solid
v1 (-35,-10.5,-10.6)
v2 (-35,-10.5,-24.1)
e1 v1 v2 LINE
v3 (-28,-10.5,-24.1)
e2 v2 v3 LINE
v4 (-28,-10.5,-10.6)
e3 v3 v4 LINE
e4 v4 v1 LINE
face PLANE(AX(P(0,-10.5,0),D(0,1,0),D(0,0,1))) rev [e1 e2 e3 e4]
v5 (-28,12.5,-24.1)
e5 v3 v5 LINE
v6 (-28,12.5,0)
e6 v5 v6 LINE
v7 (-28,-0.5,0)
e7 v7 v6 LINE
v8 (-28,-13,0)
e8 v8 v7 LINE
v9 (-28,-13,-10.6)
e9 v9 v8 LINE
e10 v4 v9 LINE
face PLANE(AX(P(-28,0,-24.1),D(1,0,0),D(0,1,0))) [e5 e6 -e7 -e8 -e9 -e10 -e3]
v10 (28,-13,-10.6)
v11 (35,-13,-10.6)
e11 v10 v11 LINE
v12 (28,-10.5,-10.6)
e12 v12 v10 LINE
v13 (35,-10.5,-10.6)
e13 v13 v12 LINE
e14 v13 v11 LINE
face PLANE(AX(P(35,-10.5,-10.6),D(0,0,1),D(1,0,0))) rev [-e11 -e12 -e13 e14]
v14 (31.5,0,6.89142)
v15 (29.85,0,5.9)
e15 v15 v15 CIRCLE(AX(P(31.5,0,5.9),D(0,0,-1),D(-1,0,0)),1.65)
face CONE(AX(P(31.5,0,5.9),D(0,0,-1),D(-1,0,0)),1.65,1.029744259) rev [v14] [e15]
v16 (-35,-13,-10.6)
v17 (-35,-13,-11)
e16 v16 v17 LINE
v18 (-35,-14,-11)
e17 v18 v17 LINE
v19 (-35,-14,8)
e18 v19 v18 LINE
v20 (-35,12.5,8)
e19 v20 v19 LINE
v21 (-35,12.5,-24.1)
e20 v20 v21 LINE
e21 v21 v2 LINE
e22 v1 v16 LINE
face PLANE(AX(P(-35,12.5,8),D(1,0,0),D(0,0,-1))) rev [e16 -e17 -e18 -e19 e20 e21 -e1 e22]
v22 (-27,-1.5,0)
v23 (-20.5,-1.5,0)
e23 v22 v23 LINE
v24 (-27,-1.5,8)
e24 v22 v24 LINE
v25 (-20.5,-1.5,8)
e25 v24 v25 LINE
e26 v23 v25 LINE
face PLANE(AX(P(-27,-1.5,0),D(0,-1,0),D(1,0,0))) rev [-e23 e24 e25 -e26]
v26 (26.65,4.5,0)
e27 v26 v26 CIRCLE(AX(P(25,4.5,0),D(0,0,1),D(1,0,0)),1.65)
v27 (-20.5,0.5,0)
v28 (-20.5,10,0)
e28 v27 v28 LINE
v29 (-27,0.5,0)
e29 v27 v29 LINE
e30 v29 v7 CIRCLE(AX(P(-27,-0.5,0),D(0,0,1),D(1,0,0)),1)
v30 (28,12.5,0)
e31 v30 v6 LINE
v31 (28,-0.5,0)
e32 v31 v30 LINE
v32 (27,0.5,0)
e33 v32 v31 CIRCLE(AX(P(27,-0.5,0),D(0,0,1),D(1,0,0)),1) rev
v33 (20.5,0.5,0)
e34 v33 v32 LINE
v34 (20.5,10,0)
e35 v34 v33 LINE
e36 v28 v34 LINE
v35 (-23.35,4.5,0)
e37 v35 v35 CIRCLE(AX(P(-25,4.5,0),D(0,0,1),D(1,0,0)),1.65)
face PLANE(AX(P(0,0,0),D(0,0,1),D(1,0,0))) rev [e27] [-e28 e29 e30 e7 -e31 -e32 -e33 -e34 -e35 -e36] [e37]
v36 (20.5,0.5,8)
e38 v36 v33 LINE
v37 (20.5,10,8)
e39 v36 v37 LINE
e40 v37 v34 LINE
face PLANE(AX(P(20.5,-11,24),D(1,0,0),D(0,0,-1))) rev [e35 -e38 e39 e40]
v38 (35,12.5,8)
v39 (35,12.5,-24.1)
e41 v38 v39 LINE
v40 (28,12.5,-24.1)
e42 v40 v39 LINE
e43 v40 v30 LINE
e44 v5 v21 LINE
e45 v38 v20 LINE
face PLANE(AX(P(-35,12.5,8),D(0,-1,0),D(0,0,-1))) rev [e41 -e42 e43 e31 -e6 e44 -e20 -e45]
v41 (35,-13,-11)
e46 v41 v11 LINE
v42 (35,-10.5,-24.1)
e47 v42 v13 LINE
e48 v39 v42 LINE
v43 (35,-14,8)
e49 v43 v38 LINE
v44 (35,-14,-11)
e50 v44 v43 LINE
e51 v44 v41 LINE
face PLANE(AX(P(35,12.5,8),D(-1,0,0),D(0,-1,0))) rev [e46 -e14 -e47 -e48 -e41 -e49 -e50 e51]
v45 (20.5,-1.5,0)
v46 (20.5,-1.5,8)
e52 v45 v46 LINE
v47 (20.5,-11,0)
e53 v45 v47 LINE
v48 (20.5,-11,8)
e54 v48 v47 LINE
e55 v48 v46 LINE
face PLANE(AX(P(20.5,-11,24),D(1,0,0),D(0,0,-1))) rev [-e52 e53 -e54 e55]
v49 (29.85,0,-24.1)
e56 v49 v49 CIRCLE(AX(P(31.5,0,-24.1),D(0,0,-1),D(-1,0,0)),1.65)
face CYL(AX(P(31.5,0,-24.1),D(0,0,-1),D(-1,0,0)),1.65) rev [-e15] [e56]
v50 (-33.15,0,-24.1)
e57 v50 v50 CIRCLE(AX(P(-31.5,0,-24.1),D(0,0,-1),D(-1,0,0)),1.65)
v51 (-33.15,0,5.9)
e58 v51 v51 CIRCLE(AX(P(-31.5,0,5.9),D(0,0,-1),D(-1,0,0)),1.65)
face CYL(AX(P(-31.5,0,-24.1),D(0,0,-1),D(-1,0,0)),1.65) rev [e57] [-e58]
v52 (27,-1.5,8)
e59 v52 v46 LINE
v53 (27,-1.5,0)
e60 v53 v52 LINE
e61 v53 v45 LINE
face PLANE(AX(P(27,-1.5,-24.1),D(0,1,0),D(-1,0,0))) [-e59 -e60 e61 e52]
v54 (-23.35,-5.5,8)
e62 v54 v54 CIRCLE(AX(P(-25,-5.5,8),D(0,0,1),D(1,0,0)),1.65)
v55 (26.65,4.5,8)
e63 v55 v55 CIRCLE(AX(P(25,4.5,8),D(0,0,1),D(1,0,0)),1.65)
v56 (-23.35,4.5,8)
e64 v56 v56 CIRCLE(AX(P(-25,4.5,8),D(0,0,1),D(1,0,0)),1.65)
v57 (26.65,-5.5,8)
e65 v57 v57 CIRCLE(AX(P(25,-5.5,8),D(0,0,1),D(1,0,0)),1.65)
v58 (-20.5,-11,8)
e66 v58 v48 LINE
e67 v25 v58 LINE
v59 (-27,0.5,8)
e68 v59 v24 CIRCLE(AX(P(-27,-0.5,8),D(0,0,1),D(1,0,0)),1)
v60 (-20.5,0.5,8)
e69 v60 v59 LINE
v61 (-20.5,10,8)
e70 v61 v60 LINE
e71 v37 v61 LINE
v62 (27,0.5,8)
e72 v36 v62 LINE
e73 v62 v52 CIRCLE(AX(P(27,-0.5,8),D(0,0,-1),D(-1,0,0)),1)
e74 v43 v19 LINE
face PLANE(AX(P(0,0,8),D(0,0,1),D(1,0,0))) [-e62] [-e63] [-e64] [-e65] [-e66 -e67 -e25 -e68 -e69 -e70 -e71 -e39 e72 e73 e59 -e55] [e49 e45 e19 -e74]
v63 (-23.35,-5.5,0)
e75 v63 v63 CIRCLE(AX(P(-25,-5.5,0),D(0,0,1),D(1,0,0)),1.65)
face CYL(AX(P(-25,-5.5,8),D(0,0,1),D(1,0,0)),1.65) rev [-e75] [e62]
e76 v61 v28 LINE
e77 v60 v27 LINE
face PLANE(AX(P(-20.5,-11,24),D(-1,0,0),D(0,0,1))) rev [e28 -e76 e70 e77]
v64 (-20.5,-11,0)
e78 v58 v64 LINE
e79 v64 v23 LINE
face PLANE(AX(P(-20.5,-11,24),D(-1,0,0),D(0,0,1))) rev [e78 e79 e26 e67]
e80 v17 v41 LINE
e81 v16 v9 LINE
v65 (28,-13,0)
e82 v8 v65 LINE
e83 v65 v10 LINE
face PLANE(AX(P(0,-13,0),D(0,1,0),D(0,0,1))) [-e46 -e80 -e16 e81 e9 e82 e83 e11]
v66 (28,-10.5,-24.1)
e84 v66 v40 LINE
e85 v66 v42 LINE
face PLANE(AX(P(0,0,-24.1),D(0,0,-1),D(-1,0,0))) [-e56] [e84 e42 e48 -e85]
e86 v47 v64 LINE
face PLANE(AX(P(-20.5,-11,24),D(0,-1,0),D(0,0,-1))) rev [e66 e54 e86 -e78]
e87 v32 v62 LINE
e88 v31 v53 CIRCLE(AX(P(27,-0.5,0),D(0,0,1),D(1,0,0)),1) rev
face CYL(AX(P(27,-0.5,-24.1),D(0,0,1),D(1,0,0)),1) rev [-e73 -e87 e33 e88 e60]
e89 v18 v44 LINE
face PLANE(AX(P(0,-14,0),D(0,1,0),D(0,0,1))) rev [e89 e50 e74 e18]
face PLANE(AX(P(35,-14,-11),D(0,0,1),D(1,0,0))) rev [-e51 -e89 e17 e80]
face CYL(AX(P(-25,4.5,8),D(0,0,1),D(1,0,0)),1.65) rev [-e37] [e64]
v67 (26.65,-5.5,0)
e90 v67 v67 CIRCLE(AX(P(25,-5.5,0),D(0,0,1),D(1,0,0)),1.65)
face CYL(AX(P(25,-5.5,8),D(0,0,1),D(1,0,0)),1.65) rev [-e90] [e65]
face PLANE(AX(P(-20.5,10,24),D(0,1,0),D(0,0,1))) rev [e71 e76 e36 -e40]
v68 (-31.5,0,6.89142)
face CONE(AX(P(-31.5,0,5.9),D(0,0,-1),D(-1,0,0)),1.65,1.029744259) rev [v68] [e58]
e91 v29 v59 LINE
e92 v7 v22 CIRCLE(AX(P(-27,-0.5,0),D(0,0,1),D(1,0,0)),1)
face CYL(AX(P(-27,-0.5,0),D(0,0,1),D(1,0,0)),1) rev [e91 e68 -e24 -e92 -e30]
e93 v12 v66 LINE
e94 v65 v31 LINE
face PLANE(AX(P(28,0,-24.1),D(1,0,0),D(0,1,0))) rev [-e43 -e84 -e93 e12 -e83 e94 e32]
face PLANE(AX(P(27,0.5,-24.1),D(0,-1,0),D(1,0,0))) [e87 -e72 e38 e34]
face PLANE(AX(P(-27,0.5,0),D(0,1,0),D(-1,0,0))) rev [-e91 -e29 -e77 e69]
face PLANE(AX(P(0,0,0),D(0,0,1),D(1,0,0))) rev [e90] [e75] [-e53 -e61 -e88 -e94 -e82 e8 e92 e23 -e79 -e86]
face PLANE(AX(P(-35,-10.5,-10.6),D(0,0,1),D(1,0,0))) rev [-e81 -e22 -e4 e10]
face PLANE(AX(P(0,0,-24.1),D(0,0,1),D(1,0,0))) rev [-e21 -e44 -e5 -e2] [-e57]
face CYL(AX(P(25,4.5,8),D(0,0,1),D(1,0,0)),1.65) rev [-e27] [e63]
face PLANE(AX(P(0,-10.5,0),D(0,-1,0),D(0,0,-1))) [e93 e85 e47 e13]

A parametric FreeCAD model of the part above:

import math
import FreeCAD as App
import Part
import Sketcher
from FreeCAD import Vector
Q = App.Units.Quantity

doc = App.newDocument("Part")
params = doc.addObject("Spreadsheet::Sheet", "Params")
for row, (alias, value) in enumerate([
    ("sketch1_width", "70 mm"),
    ("sketch1_height", "25 mm"),
    ("pad1_length", "8 mm"),
    ("sketch2_width", "41 mm"),
    ("sketch2_height", "21 mm"),
    ("pocket1_length", "24 mm"),
    ("sketch3_radius", "1 mm"),
    ("sketch3_width", "13 mm"),
    ("sketch4_width", "7 mm"),
    ("sketch4_height", "25 mm"),
    ("pad2_length", "24.1 mm"),
    ("sketch5_height", "30 mm"),
    ("sketch5_width", "1.65 mm"),
    ("groove_angle", "360 deg"),
    ("sketch6_width", "7 mm"),
    ("sketch6_height", "13.5 mm"),
    ("pocket3_length", "2 mm"),
    ("sketch7_width", "70 mm"),
    ("sketch7_width2", "7 mm"),
    ("sketch7_height", "18.6 mm"),
    ("sketch7_height2", "10.6 mm"),
    ("pad3_length", "0.5 mm"),
    ("sketch8_width", "70 mm"),
    ("sketch8_height", "19 mm"),
    ("pad4_length", "1 mm"),
    ("sketch9_diameter", "3.3 mm"),
    ("hole_diameter", "3.3 mm"),
], start=1):
    params.set(f"A{row}", alias)
    params.set(f"B{row}", "=" + value)
    params.setAlias(f"B{row}", alias)

body = doc.addObject("PartDesign::Body", "Body")

# Sketch on XY plane
sketch1 = doc.addObject("Sketcher::SketchObject", "Sketch")
body.addObject(sketch1)
sketch1.AttachmentSupport = (doc.XY_Plane, [""])
sketch1.MapMode = "FlatFace"
sketch1.addGeometry([
    Part.LineSegment(Vector(-35, 12, 0), Vector(-35, -12, 0)),
    Part.LineSegment(Vector(-35, -12, 0), Vector(35, -12, 0)),
    Part.LineSegment(Vector(35, -12, 0), Vector(35, 12, 0)),
    Part.LineSegment(Vector(35, 12, 0), Vector(-35, 12, 0)),
], False)
sketch1.addConstraint([
    Sketcher.Constraint("Coincident", 0, 2, 1, 1),
    Sketcher.Constraint("Coincident", 1, 2, 2, 1),
    Sketcher.Constraint("Coincident", 2, 2, 3, 1),
    Sketcher.Constraint("Coincident", 3, 2, 0, 1),
    Sketcher.Constraint("Vertical", 0),
    Sketcher.Constraint("Horizontal", 1),
    Sketcher.Constraint("Vertical", 2),
    Sketcher.Constraint("Horizontal", 3),
    Sketcher.Constraint("Symmetric", 0, 2, 2, 2, -1, 1),
    Sketcher.Constraint("DistanceX", 1, 1, 1, 2, Q("70 mm")),
    Sketcher.Constraint("DistanceY", 0, 2, 0, 1, Q("25 mm")),
])
sketch1.setExpression("Constraints[9]", "Params.sketch1_width")
sketch1.setExpression("Constraints[10]", "Params.sketch1_height")
pad1 = doc.addObject("PartDesign::Pad", "Pad")
body.addObject(pad1)
pad1.Profile = sketch1
pad1.setExpression("Length", "Params.pad1_length")

# Sketch on XY plane
sketch2 = doc.addObject("Sketcher::SketchObject", "Sketch001")
body.addObject(sketch2)
sketch2.AttachmentSupport = (doc.XY_Plane, [""])
sketch2.MapMode = "FlatFace"
sketch2.addGeometry([
    Part.LineSegment(Vector(20, 10, 0), Vector(20, -11, 0)),
    Part.LineSegment(Vector(20, -11, 0), Vector(-20, -11, 0)),
    Part.LineSegment(Vector(-20, -11, 0), Vector(-20, 10, 0)),
    Part.LineSegment(Vector(-20, 10, 0), Vector(20, 10, 0)),
], False)
sketch2.addConstraint([
    Sketcher.Constraint("Coincident", 0, 2, 1, 1),
    Sketcher.Constraint("Coincident", 1, 2, 2, 1),
    Sketcher.Constraint("Coincident", 2, 2, 3, 1),
    Sketcher.Constraint("Coincident", 3, 2, 0, 1),
    Sketcher.Constraint("Vertical", 0),
    Sketcher.Constraint("Horizontal", 1),
    Sketcher.Constraint("Vertical", 2),
    Sketcher.Constraint("Horizontal", 3),
    Sketcher.Constraint("DistanceX", 1, 2, 1, 1, Q("41 mm")),
    Sketcher.Constraint("DistanceY", 0, 2, 0, 1, Q("21 mm")),
    Sketcher.Constraint("DistanceY", 0, 2, -1, 1, Q("11 mm")),
    Sketcher.Constraint("DistanceX", -1, 1, 0, 2, Q("20.5 mm")),
])
sketch2.setExpression("Constraints[8]", "Params.sketch2_width")
sketch2.setExpression("Constraints[9]", "Params.sketch2_height")
pocket1 = doc.addObject("PartDesign::Pocket", "Pocket")
body.addObject(pocket1)
pocket1.Profile = sketch2
pocket1.setExpression("Length", "Params.pocket1_length")
pocket1.Reversed = True

# Sketch on XY plane
sketch3 = doc.addObject("Sketcher::SketchObject", "Sketch002")
body.addObject(sketch3)
sketch3.AttachmentSupport = (doc.XY_Plane, [""])
sketch3.MapMode = "FlatFace"
sketch3.AttachmentOffset = App.Placement(Vector(0, 0, 8), App.Rotation())
sketch3.addGeometry([
    Part.LineSegment(Vector(-14, 0.5, 0), Vector(-27, 0.5, 0)),
    Part.ArcOfCircle(Part.Circle(Vector(-27, -0.5, 0), Vector(0, 0, 1), 1), math.radians(90), math.radians(270)),
    Part.LineSegment(Vector(-27, -1.5, 0), Vector(-14, -1.5, 0)),
    Part.ArcOfCircle(Part.Circle(Vector(-14, -0.5, 0), Vector(0, 0, 1), 1), math.radians(-90), math.radians(90)),
], False)
sketch3.addConstraint([
    Sketcher.Constraint("Tangent", 0, 2, 1, 1),
    Sketcher.Constraint("Tangent", 1, 2, 2, 1),
    Sketcher.Constraint("Tangent", 2, 2, 3, 1),
    Sketcher.Constraint("Tangent", 3, 2, 0, 1),
    Sketcher.Constraint("Horizontal", 0),
    Sketcher.Constraint("Horizontal", 2),
    Sketcher.Constraint("Radius", 1, Q("1 mm")),
    Sketcher.Constraint("DistanceX", 0, 2, 0, 1, Q("13 mm")),
    Sketcher.Constraint("DistanceX", 1, 3, -1, 1, Q("27 mm")),
    Sketcher.Constraint("DistanceY", 1, 3, -1, 1, Q("0.5 mm")),
])
sketch3.setExpression("Constraints[6]", "Params.sketch3_radius")
sketch3.setExpression("Constraints[7]", "Params.sketch3_width")
pocket2 = doc.addObject("PartDesign::Pocket", "Pocket001")
body.addObject(pocket2)
pocket2.Profile = sketch3
pocket2.Type = "ThroughAll"

# Sketch on XY plane
sketch4 = doc.addObject("Sketcher::SketchObject", "Sketch003")
body.addObject(sketch4)
sketch4.AttachmentSupport = (doc.XY_Plane, [""])
sketch4.MapMode = "FlatFace"
sketch4.addGeometry([
    Part.LineSegment(Vector(-35, 12, 0), Vector(-35, -12, 0)),
    Part.LineSegment(Vector(-35, -12, 0), Vector(-28, -12, 0)),
    Part.LineSegment(Vector(-28, -12, 0), Vector(-28, 12, 0)),
    Part.LineSegment(Vector(-28, 12, 0), Vector(-35, 12, 0)),
], False)
sketch4.addConstraint([
    Sketcher.Constraint("Coincident", 0, 2, 1, 1),
    Sketcher.Constraint("Coincident", 1, 2, 2, 1),
    Sketcher.Constraint("Coincident", 2, 2, 3, 1),
    Sketcher.Constraint("Coincident", 3, 2, 0, 1),
    Sketcher.Constraint("Vertical", 0),
    Sketcher.Constraint("Horizontal", 1),
    Sketcher.Constraint("Vertical", 2),
    Sketcher.Constraint("Horizontal", 3),
    Sketcher.Constraint("DistanceX", 1, 1, 1, 2, Q("7 mm")),
    Sketcher.Constraint("DistanceY", 0, 2, 0, 1, Q("25 mm")),
    Sketcher.Constraint("DistanceX", 0, 2, -1, 1, Q("35 mm")),
    Sketcher.Constraint("DistanceY", 0, 2, -1, 1, Q("12.5 mm")),
])
sketch4.setExpression("Constraints[8]", "Params.sketch4_width")
sketch4.setExpression("Constraints[9]", "Params.sketch4_height")
pad2 = doc.addObject("PartDesign::Pad", "Pad001")
body.addObject(pad2)
pad2.Profile = sketch4
pad2.setExpression("Length", "Params.pad2_length")
pad2.Reversed = True

# Sketch on YZ plane
sketch5 = doc.addObject("Sketcher::SketchObject", "Sketch004")
body.addObject(sketch5)
sketch5.AttachmentSupport = (doc.YZ_Plane, [""])
sketch5.MapMode = "FlatFace"
sketch5.AttachmentOffset = App.Placement(Vector(0, 0, -31.5), App.Rotation())
sketch5.addGeometry([
    Part.LineSegment(Vector(0, 6.9, 0), Vector(0, -24.1, 0)),
    Part.LineSegment(Vector(0, -24.1, 0), Vector(1.6, -24.1, 0)),
    Part.LineSegment(Vector(1.6, -24.1, 0), Vector(1.6, 5.9, 0)),
    Part.LineSegment(Vector(1.6, 5.9, 0), Vector(0, 6.9, 0)),
], False)
sketch5.addConstraint([
    Sketcher.Constraint("Coincident", 0, 2, 1, 1),
    Sketcher.Constraint("Coincident", 1, 2, 2, 1),
    Sketcher.Constraint("Coincident", 2, 2, 3, 1),
    Sketcher.Constraint("Coincident", 3, 2, 0, 1),
    Sketcher.Constraint("Vertical", 0),
    Sketcher.Constraint("Horizontal", 1),
    Sketcher.Constraint("Vertical", 2),
    Sketcher.Constraint("PointOnObject", 0, 2, -2),
    Sketcher.Constraint("DistanceY", 2, 1, 2, 2, Q("30 mm")),
    Sketcher.Constraint("Angle", 3, Q("149 deg")),
    Sketcher.Constraint("DistanceX", 1, 1, 1, 2, Q("1.65 mm")),
    Sketcher.Constraint("DistanceY", 0, 2, -1, 1, Q("24.1 mm")),
])
sketch5.setExpression("Constraints[8]", "Params.sketch5_height")
sketch5.setExpression("Constraints[10]", "Params.sketch5_width")
groove = doc.addObject("PartDesign::Groove", "Groove")
body.addObject(groove)
groove.Profile = sketch5
groove.ReferenceAxis = (sketch5, ["V_Axis"])
groove.setExpression("Angle", "Params.groove_angle")
doc.recompute()

mirrored = doc.addObject("PartDesign::Mirrored", "Mirrored")
body.addObject(mirrored)
mirrored.Originals = [pocket2, pad2, groove]
mirrored.MirrorPlane = (doc.YZ_Plane, [""])
body.Tip = mirrored

# Sketch on XZ plane
sketch6 = doc.addObject("Sketcher::SketchObject", "Sketch005")
body.addObject(sketch6)
sketch6.AttachmentSupport = (doc.XZ_Plane, [""])
sketch6.MapMode = "FlatFace"
sketch6.AttachmentOffset = App.Placement(Vector(0, 0, 12.5), App.Rotation())
sketch6.addGeometry([
    Part.LineSegment(Vector(28, -11, 0), Vector(28, -24, 0)),  # 0
    Part.LineSegment(Vector(28, -24, 0), Vector(35, -24, 0)),  # 1
    Part.LineSegment(Vector(35, -24, 0), Vector(35, -11, 0)),  # 2
    Part.LineSegment(Vector(35, -11, 0), Vector(28, -11, 0)),  # 3
    Part.LineSegment(Vector(-35, -11, 0), Vector(-35, -24, 0)),  # 4
    Part.LineSegment(Vector(-35, -24, 0), Vector(-28, -24, 0)),  # 5
    Part.LineSegment(Vector(-28, -24, 0), Vector(-28, -11, 0)),  # 6
    Part.LineSegment(Vector(-28, -11, 0), Vector(-35, -11, 0)),  # 7
], False)
sketch6.addConstraint([
    Sketcher.Constraint("Coincident", 0, 2, 1, 1),
    Sketcher.Constraint("Coincident", 1, 2, 2, 1),
    Sketcher.Constraint("Coincident", 2, 2, 3, 1),
    Sketcher.Constraint("Coincident", 3, 2, 0, 1),
    Sketcher.Constraint("Coincident", 4, 2, 5, 1),
    Sketcher.Constraint("Coincident", 5, 2, 6, 1),
    Sketcher.Constraint("Coincident", 6, 2, 7, 1),
    Sketcher.Constraint("Coincident", 7, 2, 4, 1),
    Sketcher.Constraint("Vertical", 0),
    Sketcher.Constraint("Horizontal", 1),
    Sketcher.Constraint("Vertical", 2),
    Sketcher.Constraint("Horizontal", 3),
    Sketcher.Constraint("Vertical", 4),
    Sketcher.Constraint("Horizontal", 5),
    Sketcher.Constraint("Vertical", 6),
    Sketcher.Constraint("Horizontal", 7),
    Sketcher.Constraint("Symmetric", 1, 2, 4, 2, -2),
    Sketcher.Constraint("Symmetric", 3, 2, 6, 2, -2),
    Sketcher.Constraint("DistanceX", 1, 1, 1, 2, Q("7 mm")),
    Sketcher.Constraint("DistanceY", 0, 2, 0, 1, Q("13.5 mm")),
    Sketcher.Constraint("DistanceX", -1, 1, 0, 2, Q("28 mm")),
    Sketcher.Constraint("DistanceY", 0, 2, -1, 1, Q("24.1 mm")),
])
sketch6.setExpression("Constraints[18]", "Params.sketch6_width")
sketch6.setExpression("Constraints[19]", "Params.sketch6_height")
pocket3 = doc.addObject("PartDesign::Pocket", "Pocket002")
body.addObject(pocket3)
pocket3.Profile = sketch6
pocket3.setExpression("Length", "Params.pocket3_length")

# Sketch on XZ plane
sketch7 = doc.addObject("Sketcher::SketchObject", "Sketch006")
body.addObject(sketch7)
sketch7.AttachmentSupport = (doc.XZ_Plane, [""])
sketch7.MapMode = "FlatFace"
sketch7.AttachmentOffset = App.Placement(Vector(0, 0, 12.5), App.Rotation())
sketch7.addGeometry([
    Part.LineSegment(Vector(35, 8, 0), Vector(-35, 8, 0)),  # 0
    Part.LineSegment(Vector(-35, 8, 0), Vector(-35, -11, 0)),  # 1
    Part.LineSegment(Vector(-35, -11, 0), Vector(-28, -11, 0)),  # 2
    Part.LineSegment(Vector(-28, -11, 0), Vector(-28, 0, 0)),  # 3
    Part.LineSegment(Vector(-28, 0, 0), Vector(28, 0, 0)),  # 4
    Part.LineSegment(Vector(28, 0, 0), Vector(28, -11, 0)),  # 5
    Part.LineSegment(Vector(28, -11, 0), Vector(35, -11, 0)),  # 6
    Part.LineSegment(Vector(35, -11, 0), Vector(35, 8, 0)),  # 7
], False)
sketch7.addConstraint([
    Sketcher.Constraint("Coincident", 0, 2, 1, 1),
    Sketcher.Constraint("Coincident", 1, 2, 2, 1),
    Sketcher.Constraint("Coincident", 2, 2, 3, 1),
    Sketcher.Constraint("Coincident", 3, 2, 4, 1),
    Sketcher.Constraint("Coincident", 4, 2, 5, 1),
    Sketcher.Constraint("Coincident", 5, 2, 6, 1),
    Sketcher.Constraint("Coincident", 6, 2, 7, 1),
    Sketcher.Constraint("Coincident", 7, 2, 0, 1),
    Sketcher.Constraint("Horizontal", 0),
    Sketcher.Constraint("Vertical", 1),
    Sketcher.Constraint("Horizontal", 2),
    Sketcher.Constraint("Vertical", 3),
    Sketcher.Constraint("Horizontal", 4),
    Sketcher.Constraint("Vertical", 5),
    Sketcher.Constraint("Horizontal", 6),
    Sketcher.Constraint("Vertical", 7),
    Sketcher.Constraint("Symmetric", 3, 2, 4, 2, -1, 1),
    Sketcher.Constraint("Symmetric", 1, 2, 6, 2, -2),
    Sketcher.Constraint("DistanceX", 0, 2, 0, 1, Q("70 mm")),
    Sketcher.Constraint("DistanceX", 2, 1, 2, 2, Q("7 mm")),
    Sketcher.Constraint("DistanceY", 1, 2, 1, 1, Q("18.6 mm")),
    Sketcher.Constraint("DistanceY", 3, 1, 3, 2, Q("10.6 mm")),
])
sketch7.setExpression("Constraints[18]", "Params.sketch7_width")
sketch7.setExpression("Constraints[19]", "Params.sketch7_width2")
sketch7.setExpression("Constraints[20]", "Params.sketch7_height")
sketch7.setExpression("Constraints[21]", "Params.sketch7_height2")
pad3 = doc.addObject("PartDesign::Pad", "Pad002")
body.addObject(pad3)
pad3.Profile = sketch7
pad3.setExpression("Length", "Params.pad3_length")

# Sketch on XZ plane
sketch8 = doc.addObject("Sketcher::SketchObject", "Sketch007")
body.addObject(sketch8)
sketch8.AttachmentSupport = (doc.XZ_Plane, [""])
sketch8.MapMode = "FlatFace"
sketch8.AttachmentOffset = App.Placement(Vector(0, 0, 13), App.Rotation())
sketch8.addGeometry([
    Part.LineSegment(Vector(-35, 8, 0), Vector(-35, -11, 0)),
    Part.LineSegment(Vector(-35, -11, 0), Vector(35, -11, 0)),
    Part.LineSegment(Vector(35, -11, 0), Vector(35, 8, 0)),
    Part.LineSegment(Vector(35, 8, 0), Vector(-35, 8, 0)),
], False)
sketch8.addConstraint([
    Sketcher.Constraint("Coincident", 0, 2, 1, 1),
    Sketcher.Constraint("Coincident", 1, 2, 2, 1),
    Sketcher.Constraint("Coincident", 2, 2, 3, 1),
    Sketcher.Constraint("Coincident", 3, 2, 0, 1),
    Sketcher.Constraint("Vertical", 0),
    Sketcher.Constraint("Horizontal", 1),
    Sketcher.Constraint("Vertical", 2),
    Sketcher.Constraint("Horizontal", 3),
    Sketcher.Constraint("DistanceX", 1, 1, 1, 2, Q("70 mm")),
    Sketcher.Constraint("DistanceY", 0, 2, 0, 1, Q("19 mm")),
    Sketcher.Constraint("DistanceX", 0, 2, -1, 1, Q("35 mm")),
    Sketcher.Constraint("DistanceY", 0, 2, -1, 1, Q("11 mm")),
])
sketch8.setExpression("Constraints[8]", "Params.sketch8_width")
sketch8.setExpression("Constraints[9]", "Params.sketch8_height")
pad4 = doc.addObject("PartDesign::Pad", "Pad003")
body.addObject(pad4)
pad4.Profile = sketch8
pad4.setExpression("Length", "Params.pad4_length")

# Sketch on XY plane
sketch9 = doc.addObject("Sketcher::SketchObject", "Sketch008")
body.addObject(sketch9)
sketch9.AttachmentSupport = (doc.XY_Plane, [""])
sketch9.MapMode = "FlatFace"
sketch9.AttachmentOffset = App.Placement(Vector(0, 0, 8), App.Rotation())
sketch9.addGeometry([
    Part.Circle(Vector(25, -5.5, 0), Vector(0, 0, 1), 1.6),
    Part.Circle(Vector(-25, 4.5, 0), Vector(0, 0, 1), 1.6),
    Part.Circle(Vector(-25, -5.5, 0), Vector(0, 0, 1), 1.6),
    Part.Circle(Vector(25, 4.5, 0), Vector(0, 0, 1), 1.6),
], False)
sketch9.addConstraint([
    Sketcher.Constraint("Equal", 0, 1),
    Sketcher.Constraint("Equal", 1, 2),
    Sketcher.Constraint("Equal", 2, 3),
    Sketcher.Constraint("Symmetric", 0, 3, 2, 3, -2),
    Sketcher.Constraint("Symmetric", 1, 3, 3, 3, -2),
    Sketcher.Constraint("Vertical", 1, 3, 2, 3),
    Sketcher.Constraint("Diameter", 0, Q("3.3 mm")),
    Sketcher.Constraint("DistanceX", -1, 1, 0, 3, Q("25 mm")),
    Sketcher.Constraint("DistanceY", 0, 3, 1, 3, Q("10 mm")),
    Sketcher.Constraint("DistanceY", 0, 3, -1, 1, Q("5.5 mm")),
])
sketch9.setExpression("Constraints[6]", "Params.sketch9_diameter")
doc.recompute()
hole = doc.addObject("PartDesign::Hole", "Hole")
body.addObject(hole)
hole.Profile = sketch9
hole.ThreadType = "None"
hole.setExpression("Diameter", "Params.hole_diameter")
hole.DepthType = "ThroughAll"

doc.recompute()
